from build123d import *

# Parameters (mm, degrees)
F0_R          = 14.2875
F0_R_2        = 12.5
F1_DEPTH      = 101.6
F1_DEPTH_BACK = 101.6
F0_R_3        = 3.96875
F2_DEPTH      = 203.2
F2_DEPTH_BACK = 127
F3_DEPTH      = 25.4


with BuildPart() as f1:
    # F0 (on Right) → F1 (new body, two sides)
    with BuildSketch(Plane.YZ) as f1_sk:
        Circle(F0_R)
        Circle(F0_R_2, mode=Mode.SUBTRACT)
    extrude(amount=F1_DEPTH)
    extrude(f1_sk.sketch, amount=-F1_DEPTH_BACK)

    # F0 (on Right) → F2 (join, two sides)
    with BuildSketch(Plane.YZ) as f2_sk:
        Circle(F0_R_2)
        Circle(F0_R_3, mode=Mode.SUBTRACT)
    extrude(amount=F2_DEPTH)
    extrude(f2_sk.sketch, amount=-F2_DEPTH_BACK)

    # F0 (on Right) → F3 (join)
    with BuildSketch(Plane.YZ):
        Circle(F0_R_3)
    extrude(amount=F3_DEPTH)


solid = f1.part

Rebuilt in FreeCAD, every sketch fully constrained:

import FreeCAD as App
import Part
import Sketcher
from FreeCAD import Vector
Q = App.Units.Quantity

doc = App.newDocument("Part")
body = doc.addObject("PartDesign::Body", "Body")

# Sketch on YZ plane
sketch1 = doc.addObject("Sketcher::SketchObject", "Sketch")
body.addObject(sketch1)
sketch1.AttachmentSupport = (doc.YZ_Plane, [""])
sketch1.MapMode = "FlatFace"
sketch1.addGeometry(Part.Circle(Vector(0, 0, 0), Vector(0, 0, 1), 14.2875), False)
sketch1.addGeometry(Part.Circle(Vector(0, 0, 0), Vector(0, 0, 1), 12.5), False)
sketch1.addConstraint(Sketcher.Constraint("Coincident", 0, 3, -1, 1))
sketch1.addConstraint(Sketcher.Constraint("Coincident", 1, 3, -1, 1))
sketch1.addConstraint(Sketcher.Constraint("Diameter", 0, Q("1.125 in")))
sketch1.addConstraint(Sketcher.Constraint("Diameter", 1, Q("25 mm")))
pad1 = doc.addObject("PartDesign::Pad", "Pad")
body.addObject(pad1)
pad1.Profile = sketch1
pad1.Type = "TwoLengths"
pad1.Length = Q("4 in")
pad1.Length2 = Q("4 in")

# Sketch on YZ plane
sketch2 = doc.addObject("Sketcher::SketchObject", "Sketch001")
body.addObject(sketch2)
sketch2.AttachmentSupport = (doc.YZ_Plane, [""])
sketch2.MapMode = "FlatFace"
sketch2.addGeometry(Part.Circle(Vector(0, 0, 0), Vector(0, 0, 1), 12.5), False)
sketch2.addGeometry(Part.Circle(Vector(0, 0, 0), Vector(0, 0, 1), 3.96875), False)
sketch2.addConstraint(Sketcher.Constraint("Coincident", 0, 3, -1, 1))
sketch2.addConstraint(Sketcher.Constraint("Coincident", 1, 3, -1, 1))
sketch2.addConstraint(Sketcher.Constraint("Diameter", 1, Q("0.3125 in")))
sketch2.addConstraint(Sketcher.Constraint("Diameter", 0, Q("25 mm")))
pad2 = doc.addObject("PartDesign::Pad", "Pad001")
body.addObject(pad2)
pad2.Profile = sketch2
pad2.Type = "TwoLengths"
pad2.Length = Q("8 in")
pad2.Length2 = Q("5 in")

# Sketch on YZ plane
sketch3 = doc.addObject("Sketcher::SketchObject", "Sketch002")
body.addObject(sketch3)
sketch3.AttachmentSupport = (doc.YZ_Plane, [""])
sketch3.MapMode = "FlatFace"
sketch3.addGeometry(Part.Circle(Vector(0, 0, 0), Vector(0, 0, 1), 3.96875), False)
sketch3.addConstraint(Sketcher.Constraint("Coincident", 0, 3, -1, 1))
sketch3.addConstraint(Sketcher.Constraint("Diameter", 0, Q("0.3125 in")))
pad3 = doc.addObject("PartDesign::Pad", "Pad002")
body.addObject(pad3)
pad3.Profile = sketch3
pad3.Length = Q("1 in")

doc.recompute()
